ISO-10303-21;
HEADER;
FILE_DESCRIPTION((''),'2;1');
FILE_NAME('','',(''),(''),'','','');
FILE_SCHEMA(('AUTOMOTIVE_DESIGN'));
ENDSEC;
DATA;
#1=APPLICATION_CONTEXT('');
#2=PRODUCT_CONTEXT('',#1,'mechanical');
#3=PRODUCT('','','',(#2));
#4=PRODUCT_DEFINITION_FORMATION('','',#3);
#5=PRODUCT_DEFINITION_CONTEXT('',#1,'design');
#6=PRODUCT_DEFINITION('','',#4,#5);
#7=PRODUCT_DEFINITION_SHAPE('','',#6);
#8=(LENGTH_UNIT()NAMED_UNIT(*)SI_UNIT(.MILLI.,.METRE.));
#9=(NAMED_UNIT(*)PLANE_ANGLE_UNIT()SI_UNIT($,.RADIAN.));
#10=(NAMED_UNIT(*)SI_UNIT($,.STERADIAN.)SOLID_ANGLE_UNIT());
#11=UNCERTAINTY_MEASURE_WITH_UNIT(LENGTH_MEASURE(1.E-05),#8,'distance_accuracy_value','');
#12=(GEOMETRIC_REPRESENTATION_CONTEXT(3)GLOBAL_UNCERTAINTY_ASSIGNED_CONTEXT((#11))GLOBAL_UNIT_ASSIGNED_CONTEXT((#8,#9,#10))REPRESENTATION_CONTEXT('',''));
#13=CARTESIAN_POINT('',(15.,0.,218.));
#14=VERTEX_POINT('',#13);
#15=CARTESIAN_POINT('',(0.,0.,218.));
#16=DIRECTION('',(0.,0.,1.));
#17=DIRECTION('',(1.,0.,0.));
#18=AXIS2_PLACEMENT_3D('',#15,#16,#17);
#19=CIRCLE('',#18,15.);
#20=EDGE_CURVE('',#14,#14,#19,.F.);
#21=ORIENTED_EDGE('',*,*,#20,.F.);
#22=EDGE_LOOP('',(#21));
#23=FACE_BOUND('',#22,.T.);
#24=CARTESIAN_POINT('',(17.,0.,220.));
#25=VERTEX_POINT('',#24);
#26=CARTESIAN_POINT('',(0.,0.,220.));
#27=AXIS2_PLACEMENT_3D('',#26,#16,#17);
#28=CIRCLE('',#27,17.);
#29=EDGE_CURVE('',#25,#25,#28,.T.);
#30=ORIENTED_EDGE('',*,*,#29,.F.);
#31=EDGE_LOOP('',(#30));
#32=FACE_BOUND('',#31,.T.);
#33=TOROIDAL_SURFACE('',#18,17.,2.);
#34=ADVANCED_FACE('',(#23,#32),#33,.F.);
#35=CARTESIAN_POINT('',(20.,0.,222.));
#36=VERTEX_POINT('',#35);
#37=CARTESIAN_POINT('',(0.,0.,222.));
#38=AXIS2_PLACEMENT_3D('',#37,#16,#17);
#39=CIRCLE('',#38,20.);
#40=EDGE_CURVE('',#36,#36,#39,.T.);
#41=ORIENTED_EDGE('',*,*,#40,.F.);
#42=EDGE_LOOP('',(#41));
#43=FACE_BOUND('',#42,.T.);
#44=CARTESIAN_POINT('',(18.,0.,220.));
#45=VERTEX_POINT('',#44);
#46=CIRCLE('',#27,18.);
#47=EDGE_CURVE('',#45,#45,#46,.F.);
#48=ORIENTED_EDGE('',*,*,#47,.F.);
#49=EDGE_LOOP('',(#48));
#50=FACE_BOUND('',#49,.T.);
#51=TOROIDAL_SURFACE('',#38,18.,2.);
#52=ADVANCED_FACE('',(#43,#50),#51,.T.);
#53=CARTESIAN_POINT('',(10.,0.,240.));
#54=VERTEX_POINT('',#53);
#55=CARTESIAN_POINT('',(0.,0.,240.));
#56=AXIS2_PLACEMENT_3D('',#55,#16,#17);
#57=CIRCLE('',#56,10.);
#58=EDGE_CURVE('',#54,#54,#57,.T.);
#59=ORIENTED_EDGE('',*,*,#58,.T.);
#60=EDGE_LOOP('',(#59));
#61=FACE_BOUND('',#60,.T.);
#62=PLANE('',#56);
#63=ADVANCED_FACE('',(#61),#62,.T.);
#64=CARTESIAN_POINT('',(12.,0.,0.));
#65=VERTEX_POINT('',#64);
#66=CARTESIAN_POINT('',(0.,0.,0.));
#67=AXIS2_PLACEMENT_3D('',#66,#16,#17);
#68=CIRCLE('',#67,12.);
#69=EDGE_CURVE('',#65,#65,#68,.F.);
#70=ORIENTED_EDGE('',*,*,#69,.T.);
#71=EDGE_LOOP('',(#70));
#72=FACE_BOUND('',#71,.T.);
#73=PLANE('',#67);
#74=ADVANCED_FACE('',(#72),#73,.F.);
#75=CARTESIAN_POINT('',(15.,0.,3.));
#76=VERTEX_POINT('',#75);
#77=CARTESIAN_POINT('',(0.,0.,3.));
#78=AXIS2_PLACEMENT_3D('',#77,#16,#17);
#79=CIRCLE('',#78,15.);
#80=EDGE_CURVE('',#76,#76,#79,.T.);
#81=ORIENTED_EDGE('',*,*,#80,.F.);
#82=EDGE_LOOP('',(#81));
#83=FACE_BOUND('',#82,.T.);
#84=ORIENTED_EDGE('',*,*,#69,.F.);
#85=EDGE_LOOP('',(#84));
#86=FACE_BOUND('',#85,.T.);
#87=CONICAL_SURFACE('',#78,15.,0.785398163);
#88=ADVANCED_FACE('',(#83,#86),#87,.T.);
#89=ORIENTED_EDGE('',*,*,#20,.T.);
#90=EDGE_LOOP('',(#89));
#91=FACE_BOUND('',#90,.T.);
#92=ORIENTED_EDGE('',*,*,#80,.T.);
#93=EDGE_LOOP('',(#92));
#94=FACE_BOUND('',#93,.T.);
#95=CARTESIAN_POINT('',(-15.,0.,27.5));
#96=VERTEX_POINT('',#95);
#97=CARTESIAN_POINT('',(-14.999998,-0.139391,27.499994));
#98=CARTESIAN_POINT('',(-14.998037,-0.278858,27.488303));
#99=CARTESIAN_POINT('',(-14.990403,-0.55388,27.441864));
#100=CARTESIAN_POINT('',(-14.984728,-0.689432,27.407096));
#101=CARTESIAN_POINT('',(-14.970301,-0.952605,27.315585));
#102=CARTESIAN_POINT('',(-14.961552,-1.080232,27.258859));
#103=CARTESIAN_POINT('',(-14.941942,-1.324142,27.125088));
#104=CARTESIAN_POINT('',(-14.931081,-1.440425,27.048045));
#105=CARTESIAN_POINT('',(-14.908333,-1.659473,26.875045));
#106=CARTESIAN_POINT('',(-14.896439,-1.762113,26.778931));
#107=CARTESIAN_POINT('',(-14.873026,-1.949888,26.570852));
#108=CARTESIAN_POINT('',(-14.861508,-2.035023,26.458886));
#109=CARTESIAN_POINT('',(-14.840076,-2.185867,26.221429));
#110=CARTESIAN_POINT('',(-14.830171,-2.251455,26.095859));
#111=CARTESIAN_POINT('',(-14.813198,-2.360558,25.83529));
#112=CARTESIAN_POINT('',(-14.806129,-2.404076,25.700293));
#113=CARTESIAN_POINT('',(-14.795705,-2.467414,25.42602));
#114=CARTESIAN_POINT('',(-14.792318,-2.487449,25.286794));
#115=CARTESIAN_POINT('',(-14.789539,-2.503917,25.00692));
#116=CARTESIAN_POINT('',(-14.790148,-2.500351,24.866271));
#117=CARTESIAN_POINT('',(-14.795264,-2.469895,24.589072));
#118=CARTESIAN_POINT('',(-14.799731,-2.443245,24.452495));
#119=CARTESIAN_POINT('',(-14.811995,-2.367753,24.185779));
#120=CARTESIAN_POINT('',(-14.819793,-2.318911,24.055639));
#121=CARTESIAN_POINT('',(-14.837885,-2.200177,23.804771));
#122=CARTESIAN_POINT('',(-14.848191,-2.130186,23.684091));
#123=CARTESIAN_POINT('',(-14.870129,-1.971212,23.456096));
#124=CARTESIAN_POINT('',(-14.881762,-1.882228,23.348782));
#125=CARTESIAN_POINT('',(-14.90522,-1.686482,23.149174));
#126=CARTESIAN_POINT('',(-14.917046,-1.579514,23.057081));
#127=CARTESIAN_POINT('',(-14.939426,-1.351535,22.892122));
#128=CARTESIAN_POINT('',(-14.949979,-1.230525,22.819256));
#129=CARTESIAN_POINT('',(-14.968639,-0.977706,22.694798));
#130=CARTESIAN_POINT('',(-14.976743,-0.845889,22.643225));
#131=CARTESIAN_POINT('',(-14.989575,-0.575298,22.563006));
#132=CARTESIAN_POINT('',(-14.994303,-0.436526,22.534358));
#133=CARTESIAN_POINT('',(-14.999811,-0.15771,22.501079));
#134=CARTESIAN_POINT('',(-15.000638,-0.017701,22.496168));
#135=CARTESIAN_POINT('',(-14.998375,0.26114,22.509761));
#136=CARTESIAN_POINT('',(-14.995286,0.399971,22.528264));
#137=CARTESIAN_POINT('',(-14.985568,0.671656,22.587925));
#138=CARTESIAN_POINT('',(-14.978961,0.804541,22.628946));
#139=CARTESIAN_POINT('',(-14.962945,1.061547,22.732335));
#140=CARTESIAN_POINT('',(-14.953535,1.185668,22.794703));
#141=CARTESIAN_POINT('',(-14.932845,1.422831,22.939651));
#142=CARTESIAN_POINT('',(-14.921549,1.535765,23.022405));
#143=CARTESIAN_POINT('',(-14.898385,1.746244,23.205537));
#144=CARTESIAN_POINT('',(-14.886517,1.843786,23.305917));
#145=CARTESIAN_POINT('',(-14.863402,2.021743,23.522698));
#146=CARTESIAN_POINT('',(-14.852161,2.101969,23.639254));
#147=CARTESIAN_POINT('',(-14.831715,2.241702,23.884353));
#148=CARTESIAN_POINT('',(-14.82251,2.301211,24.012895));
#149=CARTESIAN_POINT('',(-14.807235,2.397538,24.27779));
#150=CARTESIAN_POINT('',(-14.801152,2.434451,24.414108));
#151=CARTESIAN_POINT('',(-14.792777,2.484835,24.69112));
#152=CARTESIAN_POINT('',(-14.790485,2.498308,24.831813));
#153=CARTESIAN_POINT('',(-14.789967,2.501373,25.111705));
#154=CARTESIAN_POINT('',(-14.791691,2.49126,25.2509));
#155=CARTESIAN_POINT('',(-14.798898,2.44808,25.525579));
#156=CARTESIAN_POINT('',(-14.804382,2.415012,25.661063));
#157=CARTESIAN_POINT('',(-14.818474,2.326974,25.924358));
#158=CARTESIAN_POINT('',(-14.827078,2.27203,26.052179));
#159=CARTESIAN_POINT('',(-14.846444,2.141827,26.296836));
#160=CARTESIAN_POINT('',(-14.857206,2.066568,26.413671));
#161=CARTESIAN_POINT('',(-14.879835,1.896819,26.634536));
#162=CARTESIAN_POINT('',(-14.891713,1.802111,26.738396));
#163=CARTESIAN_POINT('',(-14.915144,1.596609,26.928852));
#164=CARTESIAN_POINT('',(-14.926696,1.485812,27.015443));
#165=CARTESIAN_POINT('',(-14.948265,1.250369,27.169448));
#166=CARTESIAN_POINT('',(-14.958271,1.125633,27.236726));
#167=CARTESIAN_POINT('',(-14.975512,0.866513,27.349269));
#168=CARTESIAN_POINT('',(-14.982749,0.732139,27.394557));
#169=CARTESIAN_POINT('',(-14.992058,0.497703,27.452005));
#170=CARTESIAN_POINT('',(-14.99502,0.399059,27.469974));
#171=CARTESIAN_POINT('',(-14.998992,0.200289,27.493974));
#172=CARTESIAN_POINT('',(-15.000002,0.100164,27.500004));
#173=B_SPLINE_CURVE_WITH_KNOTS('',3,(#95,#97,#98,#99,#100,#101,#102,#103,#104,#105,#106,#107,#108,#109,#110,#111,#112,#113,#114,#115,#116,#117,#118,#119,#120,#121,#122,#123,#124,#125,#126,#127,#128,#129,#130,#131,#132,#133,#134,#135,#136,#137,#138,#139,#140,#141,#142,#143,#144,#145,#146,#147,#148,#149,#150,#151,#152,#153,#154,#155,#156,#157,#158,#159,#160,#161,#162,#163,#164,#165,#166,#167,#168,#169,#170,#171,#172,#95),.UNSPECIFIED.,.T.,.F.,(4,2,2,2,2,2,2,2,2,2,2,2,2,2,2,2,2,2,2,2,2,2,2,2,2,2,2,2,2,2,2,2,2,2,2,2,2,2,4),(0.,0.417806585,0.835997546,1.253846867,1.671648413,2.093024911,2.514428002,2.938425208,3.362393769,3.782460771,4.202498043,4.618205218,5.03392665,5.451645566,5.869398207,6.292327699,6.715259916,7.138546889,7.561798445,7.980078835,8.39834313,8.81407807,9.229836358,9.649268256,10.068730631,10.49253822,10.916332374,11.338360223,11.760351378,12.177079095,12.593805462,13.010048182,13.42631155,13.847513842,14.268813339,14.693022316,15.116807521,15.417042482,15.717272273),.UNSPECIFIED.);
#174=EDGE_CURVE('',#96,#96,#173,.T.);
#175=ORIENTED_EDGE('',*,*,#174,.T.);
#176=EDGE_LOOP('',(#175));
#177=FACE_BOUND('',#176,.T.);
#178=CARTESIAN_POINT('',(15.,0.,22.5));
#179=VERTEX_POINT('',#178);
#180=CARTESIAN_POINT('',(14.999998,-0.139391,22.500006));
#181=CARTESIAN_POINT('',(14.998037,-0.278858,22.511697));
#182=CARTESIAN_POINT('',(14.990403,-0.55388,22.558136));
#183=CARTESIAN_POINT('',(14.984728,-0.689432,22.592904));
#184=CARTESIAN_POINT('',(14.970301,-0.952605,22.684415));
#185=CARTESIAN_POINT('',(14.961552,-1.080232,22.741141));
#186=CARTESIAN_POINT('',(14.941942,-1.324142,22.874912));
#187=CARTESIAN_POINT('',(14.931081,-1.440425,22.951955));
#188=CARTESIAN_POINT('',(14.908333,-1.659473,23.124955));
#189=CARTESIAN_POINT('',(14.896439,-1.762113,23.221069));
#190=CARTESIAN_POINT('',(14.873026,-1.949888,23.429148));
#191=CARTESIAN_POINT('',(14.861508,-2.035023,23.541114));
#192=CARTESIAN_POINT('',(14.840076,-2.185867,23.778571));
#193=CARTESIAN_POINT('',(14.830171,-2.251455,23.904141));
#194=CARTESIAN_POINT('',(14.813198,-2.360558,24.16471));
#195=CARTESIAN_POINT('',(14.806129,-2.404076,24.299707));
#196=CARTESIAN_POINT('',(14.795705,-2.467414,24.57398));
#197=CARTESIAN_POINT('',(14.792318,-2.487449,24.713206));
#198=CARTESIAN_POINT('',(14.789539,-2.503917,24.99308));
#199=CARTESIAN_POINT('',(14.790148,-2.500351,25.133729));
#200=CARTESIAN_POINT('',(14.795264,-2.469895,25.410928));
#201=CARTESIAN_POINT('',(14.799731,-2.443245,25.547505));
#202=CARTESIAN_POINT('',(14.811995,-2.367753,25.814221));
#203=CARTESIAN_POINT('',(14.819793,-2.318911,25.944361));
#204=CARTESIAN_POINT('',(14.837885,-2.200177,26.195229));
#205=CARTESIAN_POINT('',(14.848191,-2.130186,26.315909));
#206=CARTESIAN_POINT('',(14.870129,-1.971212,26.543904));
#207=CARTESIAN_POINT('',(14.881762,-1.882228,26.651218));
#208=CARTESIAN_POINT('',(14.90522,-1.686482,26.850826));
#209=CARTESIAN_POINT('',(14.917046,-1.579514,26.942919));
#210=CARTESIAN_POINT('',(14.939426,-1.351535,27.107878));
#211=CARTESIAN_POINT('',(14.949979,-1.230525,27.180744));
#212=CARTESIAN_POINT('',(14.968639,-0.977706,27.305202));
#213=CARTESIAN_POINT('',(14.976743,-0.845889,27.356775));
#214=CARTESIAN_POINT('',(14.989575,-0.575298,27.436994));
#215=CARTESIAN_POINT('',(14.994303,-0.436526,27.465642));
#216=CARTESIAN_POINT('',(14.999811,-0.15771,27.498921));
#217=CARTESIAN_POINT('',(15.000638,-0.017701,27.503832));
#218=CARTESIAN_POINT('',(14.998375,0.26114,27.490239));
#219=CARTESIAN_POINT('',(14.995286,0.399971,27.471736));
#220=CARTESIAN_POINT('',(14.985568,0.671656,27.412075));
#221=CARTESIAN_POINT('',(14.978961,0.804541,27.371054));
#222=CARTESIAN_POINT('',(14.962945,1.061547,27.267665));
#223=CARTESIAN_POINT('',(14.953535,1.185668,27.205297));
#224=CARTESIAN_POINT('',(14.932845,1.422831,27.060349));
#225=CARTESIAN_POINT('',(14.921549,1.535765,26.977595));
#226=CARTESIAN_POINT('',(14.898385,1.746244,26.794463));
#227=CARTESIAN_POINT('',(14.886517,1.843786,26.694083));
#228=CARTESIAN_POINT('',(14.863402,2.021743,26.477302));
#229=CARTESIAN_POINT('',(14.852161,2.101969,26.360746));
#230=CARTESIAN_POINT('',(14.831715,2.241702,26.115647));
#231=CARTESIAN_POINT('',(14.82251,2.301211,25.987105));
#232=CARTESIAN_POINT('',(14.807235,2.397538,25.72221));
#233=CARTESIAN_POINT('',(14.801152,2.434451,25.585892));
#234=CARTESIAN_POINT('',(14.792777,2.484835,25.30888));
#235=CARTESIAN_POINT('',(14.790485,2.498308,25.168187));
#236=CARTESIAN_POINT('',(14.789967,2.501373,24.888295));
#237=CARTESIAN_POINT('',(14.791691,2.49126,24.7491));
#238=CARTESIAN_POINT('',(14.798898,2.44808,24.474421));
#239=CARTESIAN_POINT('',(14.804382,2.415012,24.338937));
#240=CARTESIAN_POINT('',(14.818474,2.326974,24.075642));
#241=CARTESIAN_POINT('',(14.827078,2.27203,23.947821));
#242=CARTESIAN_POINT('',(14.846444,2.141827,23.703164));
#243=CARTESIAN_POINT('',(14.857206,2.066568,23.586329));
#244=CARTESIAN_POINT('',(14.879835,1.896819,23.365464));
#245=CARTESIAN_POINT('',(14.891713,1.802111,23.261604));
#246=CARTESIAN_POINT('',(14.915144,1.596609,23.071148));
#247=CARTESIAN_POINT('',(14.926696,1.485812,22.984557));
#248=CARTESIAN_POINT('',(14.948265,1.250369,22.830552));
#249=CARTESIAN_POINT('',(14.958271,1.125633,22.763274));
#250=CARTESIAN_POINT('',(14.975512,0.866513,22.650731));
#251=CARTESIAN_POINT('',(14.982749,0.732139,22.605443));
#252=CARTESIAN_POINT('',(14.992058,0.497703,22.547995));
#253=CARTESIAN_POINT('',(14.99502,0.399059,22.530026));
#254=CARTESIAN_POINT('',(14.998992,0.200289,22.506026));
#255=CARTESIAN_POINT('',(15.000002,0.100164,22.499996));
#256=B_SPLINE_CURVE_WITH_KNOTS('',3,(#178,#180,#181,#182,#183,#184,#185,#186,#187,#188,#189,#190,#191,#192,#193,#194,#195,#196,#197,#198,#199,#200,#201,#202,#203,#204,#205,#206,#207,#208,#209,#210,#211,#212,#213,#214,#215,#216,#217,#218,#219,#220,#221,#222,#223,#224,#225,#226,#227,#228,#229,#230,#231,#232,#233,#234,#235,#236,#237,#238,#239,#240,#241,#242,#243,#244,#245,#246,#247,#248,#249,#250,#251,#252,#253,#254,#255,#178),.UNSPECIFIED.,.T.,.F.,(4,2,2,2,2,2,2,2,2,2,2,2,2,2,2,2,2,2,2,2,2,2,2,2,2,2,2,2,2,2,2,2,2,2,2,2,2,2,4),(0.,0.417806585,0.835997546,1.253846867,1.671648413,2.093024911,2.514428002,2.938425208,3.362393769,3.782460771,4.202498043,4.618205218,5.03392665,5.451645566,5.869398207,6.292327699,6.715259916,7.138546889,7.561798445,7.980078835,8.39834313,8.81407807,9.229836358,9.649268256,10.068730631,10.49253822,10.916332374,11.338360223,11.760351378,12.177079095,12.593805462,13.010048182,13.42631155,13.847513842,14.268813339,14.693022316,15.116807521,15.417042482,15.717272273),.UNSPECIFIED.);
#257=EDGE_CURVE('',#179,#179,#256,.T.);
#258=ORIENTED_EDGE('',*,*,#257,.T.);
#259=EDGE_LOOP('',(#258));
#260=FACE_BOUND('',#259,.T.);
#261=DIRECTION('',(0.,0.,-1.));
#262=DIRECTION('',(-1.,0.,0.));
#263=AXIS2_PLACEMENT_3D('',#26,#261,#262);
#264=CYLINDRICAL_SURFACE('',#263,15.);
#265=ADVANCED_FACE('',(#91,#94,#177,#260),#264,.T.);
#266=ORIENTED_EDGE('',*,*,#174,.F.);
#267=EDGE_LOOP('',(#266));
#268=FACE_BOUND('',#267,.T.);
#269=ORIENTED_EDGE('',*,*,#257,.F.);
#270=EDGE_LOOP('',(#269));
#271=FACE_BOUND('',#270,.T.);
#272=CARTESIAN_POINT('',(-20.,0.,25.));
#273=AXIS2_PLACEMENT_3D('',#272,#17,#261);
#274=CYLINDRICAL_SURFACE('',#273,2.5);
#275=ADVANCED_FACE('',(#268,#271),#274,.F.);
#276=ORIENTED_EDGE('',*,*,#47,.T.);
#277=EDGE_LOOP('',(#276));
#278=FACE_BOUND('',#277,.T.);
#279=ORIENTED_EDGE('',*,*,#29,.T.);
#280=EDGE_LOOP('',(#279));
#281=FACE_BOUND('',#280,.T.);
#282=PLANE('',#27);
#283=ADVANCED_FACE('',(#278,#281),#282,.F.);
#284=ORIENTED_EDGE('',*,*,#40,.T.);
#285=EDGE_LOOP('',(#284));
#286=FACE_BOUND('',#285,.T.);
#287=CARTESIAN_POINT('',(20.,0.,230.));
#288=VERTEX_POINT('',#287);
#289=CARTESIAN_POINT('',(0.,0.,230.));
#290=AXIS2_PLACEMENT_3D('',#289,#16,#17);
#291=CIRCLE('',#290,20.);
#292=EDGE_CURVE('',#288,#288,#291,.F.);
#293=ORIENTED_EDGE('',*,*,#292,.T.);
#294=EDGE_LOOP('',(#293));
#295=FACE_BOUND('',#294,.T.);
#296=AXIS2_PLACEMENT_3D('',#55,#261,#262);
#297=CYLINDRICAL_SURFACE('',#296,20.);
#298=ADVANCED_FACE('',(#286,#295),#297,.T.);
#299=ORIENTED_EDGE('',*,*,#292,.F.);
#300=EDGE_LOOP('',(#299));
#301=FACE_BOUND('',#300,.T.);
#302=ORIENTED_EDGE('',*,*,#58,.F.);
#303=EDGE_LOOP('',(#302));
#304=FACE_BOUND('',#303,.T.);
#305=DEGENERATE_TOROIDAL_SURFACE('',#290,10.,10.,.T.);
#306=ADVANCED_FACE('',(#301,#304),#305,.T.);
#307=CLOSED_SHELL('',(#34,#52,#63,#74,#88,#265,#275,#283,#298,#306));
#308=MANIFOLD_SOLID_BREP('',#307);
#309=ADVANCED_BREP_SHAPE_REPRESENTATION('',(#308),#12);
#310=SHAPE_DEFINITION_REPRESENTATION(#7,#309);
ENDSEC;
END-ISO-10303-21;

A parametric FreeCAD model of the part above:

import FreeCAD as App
import Part
import Sketcher

V = App.Vector


def edges_at(feature, points):
    """Names of the edges that pass closest to the given points."""
    edges = feature.Shape.Edges
    near = lambda p: min(range(len(edges)), key=lambda i: edges[i].distToShape(Part.Vertex(*p))[0])
    return sorted({f"Edge{near(p) + 1}" for p in points})

doc = App.newDocument("Part")
body = doc.addObject("PartDesign::Body", "Body")

sketch1 = body.newObject("Sketcher::SketchObject", "Sketch")
sketch1.AttachmentSupport = (doc.getObject("XY_Plane"), [""])
sketch1.MapMode = "FlatFace"
sketch1.addGeometry(Part.Circle(V(0, 0, 0), V(0, 0, 1), 15), False)
sketch1.addConstraint([
    Sketcher.Constraint("Coincident", 0, 3, -1, 1),
    Sketcher.Constraint("Diameter", 0, 30.0),
])
pad1 = body.newObject("PartDesign::Pad", "Pad")
pad1.Profile = sketch1
pad1.Length = 220

sketch2 = body.newObject("Sketcher::SketchObject", "Sketch001")
sketch2.AttachmentSupport = (doc.getObject("XY_Plane"), [""])
sketch2.MapMode = "FlatFace"
sketch2.AttachmentOffset = App.Placement(V(0, 0, 220), App.Rotation())
sketch2.addGeometry(Part.Circle(V(0, 0, 0), V(0, 0, 1), 20), False)
sketch2.addConstraint([
    Sketcher.Constraint("Coincident", 0, 3, -1, 1),
    Sketcher.Constraint("Diameter", 0, 40.0),
])
pad2 = body.newObject("PartDesign::Pad", "Pad001")
pad2.Profile = sketch2
pad2.Length = 20
doc.recompute()

fillet = body.newObject("PartDesign::Fillet", "Fillet")
fillet.Base = (pad2, edges_at(pad2, [(-20, 0, 240)]))
fillet.Radius = 10
doc.recompute()

fillet2 = body.newObject("PartDesign::Fillet", "Fillet001")
fillet2.Base = (fillet, edges_at(fillet, [(-15, 0, 220), (-20, 0, 220)]))
fillet2.Radius = 2
doc.recompute()

chamfer = body.newObject("PartDesign::Chamfer", "Chamfer")
chamfer.Base = (fillet2, edges_at(fillet2, [(-15, 0, 0)]))
chamfer.Size = 3

sketch3 = body.newObject("Sketcher::SketchObject", "Sketch002")
sketch3.AttachmentSupport = (doc.getObject("YZ_Plane"), [""])
sketch3.MapMode = "FlatFace"
sketch3.addGeometry(Part.Circle(V(0, 25, 0), V(0, 0, 1), 2.5), False)
sketch3.addConstraint([
    Sketcher.Constraint("PointOnObject", 0, 3, -2),
    Sketcher.Constraint("Diameter", 0, 5.0),
    Sketcher.Constraint("DistanceY", -1, 1, 0, 3, 25.0),
])
pocket1 = body.newObject("PartDesign::Pocket", "Pocket")
pocket1.Profile = sketch3
pocket1.Type = "ThroughAll"
pocket1.Midplane = True

doc.recompute()
